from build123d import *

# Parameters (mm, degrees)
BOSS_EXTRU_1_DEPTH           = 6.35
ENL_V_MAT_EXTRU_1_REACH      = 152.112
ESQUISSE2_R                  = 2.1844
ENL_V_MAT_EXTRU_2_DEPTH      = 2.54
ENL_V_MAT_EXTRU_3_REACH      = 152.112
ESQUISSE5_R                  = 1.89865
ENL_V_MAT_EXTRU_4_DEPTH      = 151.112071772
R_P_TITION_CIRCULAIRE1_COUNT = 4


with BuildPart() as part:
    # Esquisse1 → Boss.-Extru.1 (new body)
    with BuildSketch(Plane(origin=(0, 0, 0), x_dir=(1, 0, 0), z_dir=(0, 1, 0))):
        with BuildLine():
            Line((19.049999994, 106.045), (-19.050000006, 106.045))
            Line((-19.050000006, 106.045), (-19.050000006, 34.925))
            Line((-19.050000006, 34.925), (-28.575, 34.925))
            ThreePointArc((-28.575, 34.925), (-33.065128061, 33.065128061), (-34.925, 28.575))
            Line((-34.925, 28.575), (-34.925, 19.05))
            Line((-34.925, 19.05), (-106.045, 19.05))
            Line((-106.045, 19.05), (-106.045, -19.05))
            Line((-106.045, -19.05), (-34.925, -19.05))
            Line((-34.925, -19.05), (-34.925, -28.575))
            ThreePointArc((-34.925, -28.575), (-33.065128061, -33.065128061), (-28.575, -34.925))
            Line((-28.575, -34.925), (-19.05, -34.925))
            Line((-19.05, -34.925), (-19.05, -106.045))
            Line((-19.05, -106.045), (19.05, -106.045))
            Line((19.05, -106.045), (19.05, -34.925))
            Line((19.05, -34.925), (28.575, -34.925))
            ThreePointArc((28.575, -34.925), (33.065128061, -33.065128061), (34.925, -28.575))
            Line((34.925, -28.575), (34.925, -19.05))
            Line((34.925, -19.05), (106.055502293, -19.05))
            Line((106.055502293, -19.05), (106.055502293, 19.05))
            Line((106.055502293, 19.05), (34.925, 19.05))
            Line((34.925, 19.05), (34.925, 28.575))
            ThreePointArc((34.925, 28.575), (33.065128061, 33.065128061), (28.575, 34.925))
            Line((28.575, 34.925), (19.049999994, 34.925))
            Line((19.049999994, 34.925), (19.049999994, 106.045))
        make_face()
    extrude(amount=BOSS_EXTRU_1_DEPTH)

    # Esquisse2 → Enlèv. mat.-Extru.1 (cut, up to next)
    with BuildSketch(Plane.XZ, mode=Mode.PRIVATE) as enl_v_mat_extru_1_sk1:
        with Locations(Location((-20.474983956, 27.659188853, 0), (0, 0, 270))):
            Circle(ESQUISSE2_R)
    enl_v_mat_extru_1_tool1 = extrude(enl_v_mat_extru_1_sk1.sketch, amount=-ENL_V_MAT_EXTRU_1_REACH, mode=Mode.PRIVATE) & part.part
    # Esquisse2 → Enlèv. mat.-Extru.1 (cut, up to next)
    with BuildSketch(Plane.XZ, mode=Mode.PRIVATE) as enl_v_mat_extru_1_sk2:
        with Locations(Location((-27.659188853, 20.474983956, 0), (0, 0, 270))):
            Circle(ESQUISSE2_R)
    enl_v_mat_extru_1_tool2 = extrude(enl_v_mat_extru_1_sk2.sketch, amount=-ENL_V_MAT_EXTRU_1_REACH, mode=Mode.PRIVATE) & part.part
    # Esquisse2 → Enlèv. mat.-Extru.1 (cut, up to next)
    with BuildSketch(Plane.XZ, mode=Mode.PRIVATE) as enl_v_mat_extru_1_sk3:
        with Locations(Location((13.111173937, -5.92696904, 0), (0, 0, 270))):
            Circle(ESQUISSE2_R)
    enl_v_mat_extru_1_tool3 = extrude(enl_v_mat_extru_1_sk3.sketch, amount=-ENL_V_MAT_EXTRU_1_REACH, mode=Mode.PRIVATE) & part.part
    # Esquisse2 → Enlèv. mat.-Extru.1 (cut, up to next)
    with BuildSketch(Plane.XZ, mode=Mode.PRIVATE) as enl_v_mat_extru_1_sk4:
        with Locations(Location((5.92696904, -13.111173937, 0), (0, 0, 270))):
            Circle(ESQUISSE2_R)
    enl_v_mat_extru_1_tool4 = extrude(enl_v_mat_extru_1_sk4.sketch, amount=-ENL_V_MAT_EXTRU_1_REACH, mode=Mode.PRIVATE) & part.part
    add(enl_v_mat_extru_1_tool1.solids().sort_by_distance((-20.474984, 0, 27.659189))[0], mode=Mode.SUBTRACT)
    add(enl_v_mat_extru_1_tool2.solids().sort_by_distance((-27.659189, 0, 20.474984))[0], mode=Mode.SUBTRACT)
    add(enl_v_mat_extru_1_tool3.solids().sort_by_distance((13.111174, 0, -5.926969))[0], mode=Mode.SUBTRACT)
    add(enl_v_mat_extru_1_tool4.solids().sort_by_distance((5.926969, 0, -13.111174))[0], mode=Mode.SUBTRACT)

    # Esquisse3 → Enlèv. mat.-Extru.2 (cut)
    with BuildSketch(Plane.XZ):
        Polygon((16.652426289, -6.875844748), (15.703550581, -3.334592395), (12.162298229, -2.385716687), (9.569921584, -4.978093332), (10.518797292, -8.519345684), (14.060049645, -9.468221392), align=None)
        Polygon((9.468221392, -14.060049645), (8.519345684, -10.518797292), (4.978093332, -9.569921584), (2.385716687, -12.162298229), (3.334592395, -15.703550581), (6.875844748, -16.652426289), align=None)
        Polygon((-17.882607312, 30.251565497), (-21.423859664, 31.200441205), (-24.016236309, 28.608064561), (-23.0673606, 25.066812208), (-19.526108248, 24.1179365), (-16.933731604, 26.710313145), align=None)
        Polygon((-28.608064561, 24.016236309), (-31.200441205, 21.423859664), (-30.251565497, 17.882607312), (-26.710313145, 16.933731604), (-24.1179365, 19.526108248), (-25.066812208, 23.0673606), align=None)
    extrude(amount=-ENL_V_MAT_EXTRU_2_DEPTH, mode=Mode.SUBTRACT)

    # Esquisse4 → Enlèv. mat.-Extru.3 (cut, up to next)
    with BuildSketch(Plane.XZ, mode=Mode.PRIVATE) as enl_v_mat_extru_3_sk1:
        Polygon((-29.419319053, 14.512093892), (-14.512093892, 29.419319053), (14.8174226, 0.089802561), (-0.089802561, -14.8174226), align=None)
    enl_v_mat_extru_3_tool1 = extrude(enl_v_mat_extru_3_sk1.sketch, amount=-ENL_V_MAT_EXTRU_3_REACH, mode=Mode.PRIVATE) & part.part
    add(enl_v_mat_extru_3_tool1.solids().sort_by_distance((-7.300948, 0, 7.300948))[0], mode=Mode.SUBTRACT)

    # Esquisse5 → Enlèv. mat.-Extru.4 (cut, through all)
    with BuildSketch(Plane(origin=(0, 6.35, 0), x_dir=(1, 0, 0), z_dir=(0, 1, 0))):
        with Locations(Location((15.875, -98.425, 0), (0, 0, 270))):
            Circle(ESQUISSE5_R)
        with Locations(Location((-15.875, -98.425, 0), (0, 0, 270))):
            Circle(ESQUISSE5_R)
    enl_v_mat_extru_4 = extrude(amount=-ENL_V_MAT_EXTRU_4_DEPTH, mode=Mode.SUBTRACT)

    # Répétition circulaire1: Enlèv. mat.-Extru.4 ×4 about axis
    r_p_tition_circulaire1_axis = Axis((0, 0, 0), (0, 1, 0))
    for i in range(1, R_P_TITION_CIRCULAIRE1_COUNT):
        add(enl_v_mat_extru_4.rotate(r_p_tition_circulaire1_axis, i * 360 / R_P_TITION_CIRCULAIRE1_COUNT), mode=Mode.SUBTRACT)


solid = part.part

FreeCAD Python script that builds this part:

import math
import FreeCAD as App
import Part
import Sketcher
Q = App.Units.Quantity


def add_polygon(sketch, points):
    """Adds a closed chain of lines whose ends are joined by coincident constraints."""
    first, n = sketch.GeometryCount, len(points)
    for a, b in zip(points, points[1:] + points[:1]):
        sketch.addGeometry(Part.LineSegment(App.Vector(*a, 0), App.Vector(*b, 0)), False)
    for i in range(n):
        sketch.addConstraint(Sketcher.Constraint("Coincident", first + i, 2, first + (i + 1) % n, 1))

doc = App.newDocument("Part")
body = doc.addObject("PartDesign::Body", "Body")

# Sketch on XZ plane
sketch1 = body.newObject("Sketcher::SketchObject", "Sketch")
sketch1.AttachmentSupport = (doc.getObject("XZ_Plane"), [""])
sketch1.MapMode = "FlatFace"
sketch1.addGeometry([
    Part.LineSegment(App.Vector(19, -106, 0), App.Vector(-19, -106, 0)),  # 0
    Part.LineSegment(App.Vector(-19, -106, 0), App.Vector(-19, -35, 0)),  # 1
    Part.LineSegment(App.Vector(-19, -35, 0), App.Vector(-29, -35, 0)),  # 2
    Part.ArcOfCircle(Part.Circle(App.Vector(-29, -29, 0), App.Vector(0, 0, 1), 6), math.radians(180), math.radians(270)),  # 3
    Part.LineSegment(App.Vector(-35, -29, 0), App.Vector(-35, -19, 0)),  # 4
    Part.LineSegment(App.Vector(-35, -19, 0), App.Vector(-106, -19, 0)),  # 5
    Part.LineSegment(App.Vector(-106, -19, 0), App.Vector(-106, 19, 0)),  # 6
    Part.LineSegment(App.Vector(-106, 19, 0), App.Vector(-35, 19, 0)),  # 7
    Part.LineSegment(App.Vector(-35, 19, 0), App.Vector(-35, 29, 0)),  # 8
    Part.ArcOfCircle(Part.Circle(App.Vector(-29, 29, 0), App.Vector(0, 0, 1), 6), math.radians(90), math.radians(180)),  # 9
    Part.LineSegment(App.Vector(-29, 35, 0), App.Vector(-19, 35, 0)),  # 10
    Part.LineSegment(App.Vector(-19, 35, 0), App.Vector(-19, 106, 0)),  # 11
    Part.LineSegment(App.Vector(-19, 106, 0), App.Vector(19, 106, 0)),  # 12
    Part.LineSegment(App.Vector(19, 106, 0), App.Vector(19, 35, 0)),  # 13
    Part.LineSegment(App.Vector(19, 35, 0), App.Vector(29, 35, 0)),  # 14
    Part.ArcOfCircle(Part.Circle(App.Vector(29, 29, 0), App.Vector(0, 0, 1), 6), math.radians(0), math.radians(90)),  # 15
    Part.LineSegment(App.Vector(35, 29, 0), App.Vector(35, 19, 0)),  # 16
    Part.LineSegment(App.Vector(35, 19, 0), App.Vector(106, 19, 0)),  # 17
    Part.LineSegment(App.Vector(106, 19, 0), App.Vector(106, -19, 0)),  # 18
    Part.LineSegment(App.Vector(106, -19, 0), App.Vector(35, -19, 0)),  # 19
    Part.LineSegment(App.Vector(35, -19, 0), App.Vector(35, -29, 0)),  # 20
    Part.ArcOfCircle(Part.Circle(App.Vector(29, -29, 0), App.Vector(0, 0, 1), 6), math.radians(-90), math.radians(0)),  # 21
    Part.LineSegment(App.Vector(29, -35, 0), App.Vector(19, -35, 0)),  # 22
    Part.LineSegment(App.Vector(19, -35, 0), App.Vector(19, -106, 0)),  # 23
], False)
sketch1.addConstraint([
    Sketcher.Constraint("Coincident", 0, 2, 1, 1),
    Sketcher.Constraint("Coincident", 1, 2, 2, 1),
    Sketcher.Constraint("Tangent", 2, 2, 3, 2),
    Sketcher.Constraint("Tangent", 3, 1, 4, 1),
    Sketcher.Constraint("Coincident", 4, 2, 5, 1),
    Sketcher.Constraint("Coincident", 5, 2, 6, 1),
    Sketcher.Constraint("Coincident", 6, 2, 7, 1),
    Sketcher.Constraint("Coincident", 7, 2, 8, 1),
    Sketcher.Constraint("Tangent", 8, 2, 9, 2),
    Sketcher.Constraint("Tangent", 9, 1, 10, 1),
    Sketcher.Constraint("Coincident", 10, 2, 11, 1),
    Sketcher.Constraint("Coincident", 11, 2, 12, 1),
    Sketcher.Constraint("Coincident", 12, 2, 13, 1),
    Sketcher.Constraint("Coincident", 13, 2, 14, 1),
    Sketcher.Constraint("Tangent", 14, 2, 15, 2),
    Sketcher.Constraint("Tangent", 15, 1, 16, 1),
    Sketcher.Constraint("Coincident", 16, 2, 17, 1),
    Sketcher.Constraint("Coincident", 17, 2, 18, 1),
    Sketcher.Constraint("Coincident", 18, 2, 19, 1),
    Sketcher.Constraint("Coincident", 19, 2, 20, 1),
    Sketcher.Constraint("Tangent", 20, 2, 21, 2),
    Sketcher.Constraint("Tangent", 21, 1, 22, 1),
    Sketcher.Constraint("Coincident", 22, 2, 23, 1),
    Sketcher.Constraint("Coincident", 23, 2, 0, 1),
    Sketcher.Constraint("Horizontal", 0),
    Sketcher.Constraint("Vertical", 1),
    Sketcher.Constraint("Horizontal", 2),
    Sketcher.Constraint("Vertical", 4),
    Sketcher.Constraint("Horizontal", 5),
    Sketcher.Constraint("Vertical", 6),
    Sketcher.Constraint("Horizontal", 7),
    Sketcher.Constraint("Vertical", 8),
    Sketcher.Constraint("Horizontal", 10),
    Sketcher.Constraint("Vertical", 11),
    Sketcher.Constraint("Horizontal", 12),
    Sketcher.Constraint("Vertical", 13),
    Sketcher.Constraint("Horizontal", 14),
    Sketcher.Constraint("Vertical", 16),
    Sketcher.Constraint("Horizontal", 17),
    Sketcher.Constraint("Vertical", 18),
    Sketcher.Constraint("Horizontal", 19),
    Sketcher.Constraint("Vertical", 20),
    Sketcher.Constraint("Horizontal", 22),
    Sketcher.Constraint("Vertical", 23),
    Sketcher.Constraint("Equal", 3, 9),
    Sketcher.Constraint("Equal", 9, 15),
    Sketcher.Constraint("Equal", 15, 21),
    Sketcher.Constraint("Symmetric", 3, 3, 15, 3, -1, 1),
    Sketcher.Constraint("Symmetric", 9, 3, 21, 3, -1, 1),
    Sketcher.Constraint("Symmetric", 0, 2, 12, 2, -1, 1),
    Sketcher.Constraint("Symmetric", 9, 3, 15, 3, -2),
    Sketcher.Constraint("Horizontal", 7, 2, 16, 2),
    Sketcher.Constraint("Horizontal", 5, 2, 18, 2),
    Sketcher.Constraint("Vertical", 1, 2, 10, 2),
    Sketcher.Constraint("Vertical", 13, 2, 22, 2),
    Sketcher.Constraint("Equal", 7, 1),
    Sketcher.Constraint("Equal", 22, 4),
    Sketcher.Constraint("Equal", 12, 6),
    Sketcher.Constraint("Equal", 4, 8),
    Sketcher.Constraint("Radius", 3, Q("0.25 in")),
    Sketcher.Constraint("DistanceX", 0, 2, 0, 1, Q("1.5 in")),
    Sketcher.Constraint("DistanceX", 5, 2, 5, 1, Q("2.8 in")),
    Sketcher.Constraint("DistanceY", 0, 2, 9, 3, Q("5.3 in")),
    Sketcher.Constraint("DistanceX", 17, 1, 17, 2, 71.130502),
])
pad1 = body.newObject("PartDesign::Pad", "Pad")
pad1.Profile = sketch1
pad1.Length = Q("0.25 in")
pad1.Reversed = True

# Sketch on XZ plane
sketch2 = body.newObject("Sketcher::SketchObject", "Sketch001")
sketch2.AttachmentSupport = (doc.getObject("XZ_Plane"), [""])
sketch2.MapMode = "FlatFace"
sketch2.addGeometry(Part.Circle(App.Vector(-20.5, 27.7, 0), App.Vector(0, 0, 1), 2.2), False)
sketch2.addConstraint([
    Sketcher.Constraint("Diameter", 0, Q("0.172 in")),
    Sketcher.Constraint("DistanceY", -1, 1, 0, 3, 27.659189),
    Sketcher.Constraint("DistanceX", 0, 3, -1, 1, 20.474984),
])
pocket1 = body.newObject("PartDesign::Pocket", "Pocket")
pocket1.Profile = sketch2
pocket1.Type = "UpToFirst"

# Sketch on XZ plane
sketch3 = body.newObject("Sketcher::SketchObject", "Sketch002")
sketch3.AttachmentSupport = (doc.getObject("XZ_Plane"), [""])
sketch3.MapMode = "FlatFace"
sketch3.addGeometry(Part.Circle(App.Vector(-27.7, 20.5, 0), App.Vector(0, 0, 1), 2.2), False)
sketch3.addConstraint([
    Sketcher.Constraint("Diameter", 0, Q("0.172 in")),
    Sketcher.Constraint("DistanceX", 0, 3, -1, 1, 27.659189),
    Sketcher.Constraint("DistanceY", -1, 1, 0, 3, 20.474984),
])
pocket2 = body.newObject("PartDesign::Pocket", "Pocket001")
pocket2.Profile = sketch3
pocket2.Type = "UpToFirst"

# Sketch on XZ plane
sketch4 = body.newObject("Sketcher::SketchObject", "Sketch003")
sketch4.AttachmentSupport = (doc.getObject("XZ_Plane"), [""])
sketch4.MapMode = "FlatFace"
sketch4.addGeometry(Part.Circle(App.Vector(13.1, -5.9, 0), App.Vector(0, 0, 1), 2.2), False)
sketch4.addConstraint([
    Sketcher.Constraint("Diameter", 0, Q("0.172 in")),
    Sketcher.Constraint("DistanceY", 0, 3, -1, 1, 5.926969),
    Sketcher.Constraint("DistanceX", -1, 1, 0, 3, 13.111174),
])
pocket3 = body.newObject("PartDesign::Pocket", "Pocket002")
pocket3.Profile = sketch4
pocket3.Type = "UpToFirst"

# Sketch on XZ plane
sketch5 = body.newObject("Sketcher::SketchObject", "Sketch004")
sketch5.AttachmentSupport = (doc.getObject("XZ_Plane"), [""])
sketch5.MapMode = "FlatFace"
sketch5.addGeometry(Part.Circle(App.Vector(5.9, -13.1, 0), App.Vector(0, 0, 1), 2.2), False)
sketch5.addConstraint([
    Sketcher.Constraint("Diameter", 0, Q("0.172 in")),
    Sketcher.Constraint("DistanceX", -1, 1, 0, 3, 5.926969),
    Sketcher.Constraint("DistanceY", 0, 3, -1, 1, 13.111174),
])
pocket4 = body.newObject("PartDesign::Pocket", "Pocket003")
pocket4.Profile = sketch5
pocket4.Type = "UpToFirst"

# Sketch on XZ plane
sketch6 = body.newObject("Sketcher::SketchObject", "Sketch005")
sketch6.AttachmentSupport = (doc.getObject("XZ_Plane"), [""])
sketch6.MapMode = "FlatFace"
add_polygon(sketch6, [(16.7, -6.9), (15.7, -3.3), (12.2, -2.4), (9.6, -5), (10.5, -8.5), (14.1, -9.5)])  # lines 0-5
add_polygon(sketch6, [(9.5, -14.1), (8.5, -10.5), (5, -9.6), (2.4, -12.2), (3.3, -15.7), (6.9, -16.7)])  # lines 6-11
add_polygon(sketch6, [(-17.9, 30.3), (-21.4, 31.2), (-24, 28.6), (-23.1, 25.1), (-19.5, 24.1), (-16.9, 26.7)])  # lines 12-17
add_polygon(sketch6, [(-28.6, 24), (-31.2, 21.4), (-30.3, 17.9), (-26.7, 16.9), (-24.1, 19.5), (-25.1, 23.1)])  # lines 18-23
sketch6.addConstraint([
    Sketcher.Constraint("Parallel", 0, 3),
    Sketcher.Constraint("Parallel", 1, 4),
    Sketcher.Constraint("Parallel", 2, 5),
    Sketcher.Constraint("Parallel", 3, 6),
    Sketcher.Constraint("Parallel", 4, 7),
    Sketcher.Constraint("Parallel", 5, 8),
    Sketcher.Constraint("Parallel", 6, 9),
    Sketcher.Constraint("Parallel", 7, 10),
    Sketcher.Constraint("Parallel", 8, 11),
    Sketcher.Constraint("Parallel", 10, 12),
    Sketcher.Constraint("Parallel", 11, 13),
    Sketcher.Constraint("Parallel", 9, 14),
    Sketcher.Constraint("Parallel", 12, 15),
    Sketcher.Constraint("Parallel", 13, 16),
    Sketcher.Constraint("Parallel", 14, 17),
    Sketcher.Constraint("Parallel", 16, 18),
    Sketcher.Constraint("Parallel", 17, 19),
    Sketcher.Constraint("Parallel", 15, 20),
    Sketcher.Constraint("Parallel", 18, 21),
    Sketcher.Constraint("Parallel", 19, 22),
    Sketcher.Constraint("Parallel", 20, 23),
    Sketcher.Constraint("Equal", 0, 1),
    Sketcher.Constraint("Equal", 1, 2),
    Sketcher.Constraint("Equal", 2, 3),
    Sketcher.Constraint("Equal", 5, 6),
    Sketcher.Constraint("Equal", 6, 7),
    Sketcher.Constraint("Equal", 7, 8),
    Sketcher.Constraint("Equal", 8, 9),
    Sketcher.Constraint("Equal", 11, 12),
    Sketcher.Constraint("Equal", 12, 13),
    Sketcher.Constraint("Equal", 13, 14),
    Sketcher.Constraint("Equal", 14, 15),
    Sketcher.Constraint("Equal", 17, 18),
    Sketcher.Constraint("Equal", 18, 19),
    Sketcher.Constraint("Equal", 19, 20),
    Sketcher.Constraint("Equal", 20, 21),
    Sketcher.Constraint("Angle", 0, Q("105 deg")),
    Sketcher.Constraint("Angle", 1, Q("165 deg")),
    Sketcher.Constraint("Angle", 2, Q("-135 deg")),
    Sketcher.Constraint("DistanceX", 6, 2, 5, 2, Q("0.3202 in")),
    Sketcher.Constraint("DistanceY", 6, 2, 1, 2, Q("0.3202 in")),
    Sketcher.Constraint("DistanceX", 18, 2, 14, 2, Q("0.3202 in")),
    Sketcher.Constraint("DistanceY", 20, 2, 14, 2, Q("0.3202 in")),
    Sketcher.Constraint("DistanceX", -1, 1, 1, 2, 12.162298),
    Sketcher.Constraint("DistanceY", 8, 2, -1, 1, 12.162298),
    Sketcher.Constraint("DistanceY", 2, 2, 0, 2, 1.643501),
    Sketcher.Constraint("DistanceX", 12, 2, -1, 1, 21.42386),
    Sketcher.Constraint("DistanceY", -1, 1, 12, 2, 31.200441),
])
pocket5 = body.newObject("PartDesign::Pocket", "Pocket004")
pocket5.Profile = sketch6
pocket5.Length = Q("0.1 in")

# Sketch on XZ plane
sketch7 = body.newObject("Sketcher::SketchObject", "Sketch006")
sketch7.AttachmentSupport = (doc.getObject("XZ_Plane"), [""])
sketch7.MapMode = "FlatFace"
add_polygon(sketch7, [(-15, 29), (-29, 15), (0, -15), (15, 0)])  # lines 0-3
sketch7.addConstraint([
    Sketcher.Constraint("Perpendicular", 0, 1),
    Sketcher.Constraint("Perpendicular", 1, 2),
    Sketcher.Constraint("Perpendicular", 2, 3),
    Sketcher.Constraint("Angle", 0, Q("-135 deg")),
    Sketcher.Constraint("Distance", 0, Q("0.83 in")),
    Sketcher.Constraint("Distance", 1, Q("1.633 in")),
    Sketcher.Constraint("DistanceX", 0, 2, -1, 1, 29.419319),
    Sketcher.Constraint("DistanceY", -1, 1, 3, 2, 29.419319),
])
pocket6 = body.newObject("PartDesign::Pocket", "Pocket005")
pocket6.Profile = sketch7
pocket6.Type = "UpToFirst"

# Sketch on XZ plane
sketch8 = body.newObject("Sketcher::SketchObject", "Sketch007")
sketch8.AttachmentSupport = (doc.getObject("XZ_Plane"), [""])
sketch8.MapMode = "FlatFace"
sketch8.AttachmentOffset = App.Placement(App.Vector(0, 0, -0.25 * 25.4), App.Rotation())
sketch8.addGeometry([
    Part.Circle(App.Vector(15.9, 98.4, 0), App.Vector(0, 0, 1), 1.9),
    Part.Circle(App.Vector(-15.9, 98.4, 0), App.Vector(0, 0, 1), 1.9),
], False)
sketch8.addConstraint([
    Sketcher.Constraint("Equal", 0, 1),
    Sketcher.Constraint("Symmetric", 0, 3, 1, 3, -2),
    Sketcher.Constraint("Diameter", 0, Q("0.1495 in")),
    Sketcher.Constraint("DistanceX", 1, 3, 0, 3, Q("1.25 in")),
    Sketcher.Constraint("DistanceY", -1, 1, 0, 3, Q("3.875 in")),
])
pocket7 = body.newObject("PartDesign::Pocket", "Pocket006")
pocket7.Profile = sketch8
pocket7.Type = "ThroughAll"
pocket7.Reversed = True
doc.recompute()

polarpattern = body.newObject("PartDesign::PolarPattern", "PolarPattern")
polarpattern.Originals = [pocket7]
polarpattern.Axis = (doc.getObject("Y_Axis"), [""])
polarpattern.Angle = 360
polarpattern.Occurrences = 4
body.Tip = polarpattern

doc.recompute()
